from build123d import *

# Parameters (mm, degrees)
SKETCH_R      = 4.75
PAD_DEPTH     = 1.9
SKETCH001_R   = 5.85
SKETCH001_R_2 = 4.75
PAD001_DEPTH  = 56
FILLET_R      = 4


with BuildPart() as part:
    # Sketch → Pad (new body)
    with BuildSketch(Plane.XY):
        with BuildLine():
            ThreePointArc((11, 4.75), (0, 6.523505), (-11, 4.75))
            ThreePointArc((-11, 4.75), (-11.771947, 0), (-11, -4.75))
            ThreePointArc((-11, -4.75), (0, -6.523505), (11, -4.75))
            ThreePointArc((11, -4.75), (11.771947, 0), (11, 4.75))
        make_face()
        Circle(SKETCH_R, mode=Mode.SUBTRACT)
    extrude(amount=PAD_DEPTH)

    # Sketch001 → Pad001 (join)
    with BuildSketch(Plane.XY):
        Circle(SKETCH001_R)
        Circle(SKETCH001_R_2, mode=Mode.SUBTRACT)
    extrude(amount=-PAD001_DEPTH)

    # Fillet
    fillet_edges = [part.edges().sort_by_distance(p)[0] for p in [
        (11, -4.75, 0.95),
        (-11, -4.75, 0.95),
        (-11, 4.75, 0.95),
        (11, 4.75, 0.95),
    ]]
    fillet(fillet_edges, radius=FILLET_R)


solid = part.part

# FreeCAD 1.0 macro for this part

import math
import FreeCAD as App
import Part
import Sketcher
Q = App.Units.Quantity


def edges_at(feature, points):
    """Names of the edges that pass closest to the given points."""
    edges = feature.Shape.Edges
    near = lambda p: min(range(len(edges)), key=lambda i: edges[i].distToShape(Part.Vertex(*p))[0])
    return sorted({f"Edge{near(p) + 1}" for p in points})

doc = App.newDocument("Part")
body = doc.addObject("PartDesign::Body", "Body")

sketch1 = doc.addObject("Sketcher::SketchObject", "Sketch")
body.addObject(sketch1)
sketch1.AttachmentSupport = (doc.XY_Plane, [""])
sketch1.MapMode = "FlatFace"
sketch1.addGeometry(Part.ArcOfCircle(Part.Circle(App.Vector(0, -28.5, 0), App.Vector(0, 0, 1), 35), math.radians(72), math.radians(108)), False)
sketch1.addGeometry(Part.ArcOfCircle(Part.Circle(App.Vector(3.2, 0, 0), App.Vector(0, 0, 1), 15), math.radians(162), math.radians(198)), False)
sketch1.addGeometry(Part.ArcOfCircle(Part.Circle(App.Vector(0, 28.5, 0), App.Vector(0, 0, 1), 35), math.radians(-108), math.radians(-72)), False)
sketch1.addGeometry(Part.ArcOfCircle(Part.Circle(App.Vector(-3.2, 0, 0), App.Vector(0, 0, 1), 15), math.radians(-18), math.radians(18)), False)
sketch1.addGeometry(Part.Circle(App.Vector(0, 0, 0), App.Vector(0, 0, 1), 4.8), False)
sketch1.addConstraint(Sketcher.Constraint("Coincident", 0, 2, 1, 1))
sketch1.addConstraint(Sketcher.Constraint("Coincident", 1, 2, 2, 1))
sketch1.addConstraint(Sketcher.Constraint("Coincident", 2, 2, 3, 1))
sketch1.addConstraint(Sketcher.Constraint("Coincident", 3, 2, 0, 1))
sketch1.addConstraint(Sketcher.Constraint("Coincident", 4, 3, -1, 1))
sketch1.addConstraint(Sketcher.Constraint("Equal", 0, 2))
sketch1.addConstraint(Sketcher.Constraint("Equal", 1, 3))
sketch1.addConstraint(Sketcher.Constraint("Symmetric", 0, 3, 2, 3, -1, 1))
sketch1.addConstraint(Sketcher.Constraint("Symmetric", 1, 3, 3, 3, -1, 1))
sketch1.addConstraint(Sketcher.Constraint("Symmetric", 1, 2, 2, 2, -2))
sketch1.addConstraint(Sketcher.Constraint("Diameter", 4, Q("9.5 mm")))
sketch1.addConstraint(Sketcher.Constraint("DistanceX", 0, 2, -1, 1, Q("11 mm")))
sketch1.addConstraint(Sketcher.Constraint("DistanceY", 1, 2, 0, 2, Q("9.5 mm")))
sketch1.addConstraint(Sketcher.Constraint("Radius", 0, Q("34.999992 mm")))
sketch1.addConstraint(Sketcher.Constraint("Radius", 1, Q("14.999995 mm")))
pad1 = doc.addObject("PartDesign::Pad", "Pad")
body.addObject(pad1)
pad1.Profile = sketch1
pad1.Length = 1.9

sketch2 = doc.addObject("Sketcher::SketchObject", "Sketch001")
body.addObject(sketch2)
sketch2.AttachmentSupport = (doc.XY_Plane, [""])
sketch2.MapMode = "FlatFace"
sketch2.addGeometry(Part.Circle(App.Vector(0, 0, 0), App.Vector(0, 0, 1), 5.8), False)
sketch2.addGeometry(Part.Circle(App.Vector(0, 0, 0), App.Vector(0, 0, 1), 4.8), False)
sketch2.addConstraint(Sketcher.Constraint("Coincident", 0, 3, -1, 1))
sketch2.addConstraint(Sketcher.Constraint("Coincident", 1, 3, -1, 1))
sketch2.addConstraint(Sketcher.Constraint("Diameter", 0, Q("11.7 mm")))
sketch2.addConstraint(Sketcher.Constraint("Diameter", 1, Q("9.5 mm")))
pad2 = doc.addObject("PartDesign::Pad", "Pad001")
body.addObject(pad2)
pad2.Profile = sketch2
pad2.Length = 56
pad2.Reversed = True
doc.recompute()

fillet = doc.addObject("PartDesign::Fillet", "Fillet")
body.addObject(fillet)
fillet.Base = (pad2, edges_at(pad2, [
    (11, -4.75, 0.95),
    (-11, -4.75, 0.95),
    (-11, 4.75, 0.95),
    (11, 4.75, 0.95),
]))
fillet.Radius = 4

doc.recompute()
